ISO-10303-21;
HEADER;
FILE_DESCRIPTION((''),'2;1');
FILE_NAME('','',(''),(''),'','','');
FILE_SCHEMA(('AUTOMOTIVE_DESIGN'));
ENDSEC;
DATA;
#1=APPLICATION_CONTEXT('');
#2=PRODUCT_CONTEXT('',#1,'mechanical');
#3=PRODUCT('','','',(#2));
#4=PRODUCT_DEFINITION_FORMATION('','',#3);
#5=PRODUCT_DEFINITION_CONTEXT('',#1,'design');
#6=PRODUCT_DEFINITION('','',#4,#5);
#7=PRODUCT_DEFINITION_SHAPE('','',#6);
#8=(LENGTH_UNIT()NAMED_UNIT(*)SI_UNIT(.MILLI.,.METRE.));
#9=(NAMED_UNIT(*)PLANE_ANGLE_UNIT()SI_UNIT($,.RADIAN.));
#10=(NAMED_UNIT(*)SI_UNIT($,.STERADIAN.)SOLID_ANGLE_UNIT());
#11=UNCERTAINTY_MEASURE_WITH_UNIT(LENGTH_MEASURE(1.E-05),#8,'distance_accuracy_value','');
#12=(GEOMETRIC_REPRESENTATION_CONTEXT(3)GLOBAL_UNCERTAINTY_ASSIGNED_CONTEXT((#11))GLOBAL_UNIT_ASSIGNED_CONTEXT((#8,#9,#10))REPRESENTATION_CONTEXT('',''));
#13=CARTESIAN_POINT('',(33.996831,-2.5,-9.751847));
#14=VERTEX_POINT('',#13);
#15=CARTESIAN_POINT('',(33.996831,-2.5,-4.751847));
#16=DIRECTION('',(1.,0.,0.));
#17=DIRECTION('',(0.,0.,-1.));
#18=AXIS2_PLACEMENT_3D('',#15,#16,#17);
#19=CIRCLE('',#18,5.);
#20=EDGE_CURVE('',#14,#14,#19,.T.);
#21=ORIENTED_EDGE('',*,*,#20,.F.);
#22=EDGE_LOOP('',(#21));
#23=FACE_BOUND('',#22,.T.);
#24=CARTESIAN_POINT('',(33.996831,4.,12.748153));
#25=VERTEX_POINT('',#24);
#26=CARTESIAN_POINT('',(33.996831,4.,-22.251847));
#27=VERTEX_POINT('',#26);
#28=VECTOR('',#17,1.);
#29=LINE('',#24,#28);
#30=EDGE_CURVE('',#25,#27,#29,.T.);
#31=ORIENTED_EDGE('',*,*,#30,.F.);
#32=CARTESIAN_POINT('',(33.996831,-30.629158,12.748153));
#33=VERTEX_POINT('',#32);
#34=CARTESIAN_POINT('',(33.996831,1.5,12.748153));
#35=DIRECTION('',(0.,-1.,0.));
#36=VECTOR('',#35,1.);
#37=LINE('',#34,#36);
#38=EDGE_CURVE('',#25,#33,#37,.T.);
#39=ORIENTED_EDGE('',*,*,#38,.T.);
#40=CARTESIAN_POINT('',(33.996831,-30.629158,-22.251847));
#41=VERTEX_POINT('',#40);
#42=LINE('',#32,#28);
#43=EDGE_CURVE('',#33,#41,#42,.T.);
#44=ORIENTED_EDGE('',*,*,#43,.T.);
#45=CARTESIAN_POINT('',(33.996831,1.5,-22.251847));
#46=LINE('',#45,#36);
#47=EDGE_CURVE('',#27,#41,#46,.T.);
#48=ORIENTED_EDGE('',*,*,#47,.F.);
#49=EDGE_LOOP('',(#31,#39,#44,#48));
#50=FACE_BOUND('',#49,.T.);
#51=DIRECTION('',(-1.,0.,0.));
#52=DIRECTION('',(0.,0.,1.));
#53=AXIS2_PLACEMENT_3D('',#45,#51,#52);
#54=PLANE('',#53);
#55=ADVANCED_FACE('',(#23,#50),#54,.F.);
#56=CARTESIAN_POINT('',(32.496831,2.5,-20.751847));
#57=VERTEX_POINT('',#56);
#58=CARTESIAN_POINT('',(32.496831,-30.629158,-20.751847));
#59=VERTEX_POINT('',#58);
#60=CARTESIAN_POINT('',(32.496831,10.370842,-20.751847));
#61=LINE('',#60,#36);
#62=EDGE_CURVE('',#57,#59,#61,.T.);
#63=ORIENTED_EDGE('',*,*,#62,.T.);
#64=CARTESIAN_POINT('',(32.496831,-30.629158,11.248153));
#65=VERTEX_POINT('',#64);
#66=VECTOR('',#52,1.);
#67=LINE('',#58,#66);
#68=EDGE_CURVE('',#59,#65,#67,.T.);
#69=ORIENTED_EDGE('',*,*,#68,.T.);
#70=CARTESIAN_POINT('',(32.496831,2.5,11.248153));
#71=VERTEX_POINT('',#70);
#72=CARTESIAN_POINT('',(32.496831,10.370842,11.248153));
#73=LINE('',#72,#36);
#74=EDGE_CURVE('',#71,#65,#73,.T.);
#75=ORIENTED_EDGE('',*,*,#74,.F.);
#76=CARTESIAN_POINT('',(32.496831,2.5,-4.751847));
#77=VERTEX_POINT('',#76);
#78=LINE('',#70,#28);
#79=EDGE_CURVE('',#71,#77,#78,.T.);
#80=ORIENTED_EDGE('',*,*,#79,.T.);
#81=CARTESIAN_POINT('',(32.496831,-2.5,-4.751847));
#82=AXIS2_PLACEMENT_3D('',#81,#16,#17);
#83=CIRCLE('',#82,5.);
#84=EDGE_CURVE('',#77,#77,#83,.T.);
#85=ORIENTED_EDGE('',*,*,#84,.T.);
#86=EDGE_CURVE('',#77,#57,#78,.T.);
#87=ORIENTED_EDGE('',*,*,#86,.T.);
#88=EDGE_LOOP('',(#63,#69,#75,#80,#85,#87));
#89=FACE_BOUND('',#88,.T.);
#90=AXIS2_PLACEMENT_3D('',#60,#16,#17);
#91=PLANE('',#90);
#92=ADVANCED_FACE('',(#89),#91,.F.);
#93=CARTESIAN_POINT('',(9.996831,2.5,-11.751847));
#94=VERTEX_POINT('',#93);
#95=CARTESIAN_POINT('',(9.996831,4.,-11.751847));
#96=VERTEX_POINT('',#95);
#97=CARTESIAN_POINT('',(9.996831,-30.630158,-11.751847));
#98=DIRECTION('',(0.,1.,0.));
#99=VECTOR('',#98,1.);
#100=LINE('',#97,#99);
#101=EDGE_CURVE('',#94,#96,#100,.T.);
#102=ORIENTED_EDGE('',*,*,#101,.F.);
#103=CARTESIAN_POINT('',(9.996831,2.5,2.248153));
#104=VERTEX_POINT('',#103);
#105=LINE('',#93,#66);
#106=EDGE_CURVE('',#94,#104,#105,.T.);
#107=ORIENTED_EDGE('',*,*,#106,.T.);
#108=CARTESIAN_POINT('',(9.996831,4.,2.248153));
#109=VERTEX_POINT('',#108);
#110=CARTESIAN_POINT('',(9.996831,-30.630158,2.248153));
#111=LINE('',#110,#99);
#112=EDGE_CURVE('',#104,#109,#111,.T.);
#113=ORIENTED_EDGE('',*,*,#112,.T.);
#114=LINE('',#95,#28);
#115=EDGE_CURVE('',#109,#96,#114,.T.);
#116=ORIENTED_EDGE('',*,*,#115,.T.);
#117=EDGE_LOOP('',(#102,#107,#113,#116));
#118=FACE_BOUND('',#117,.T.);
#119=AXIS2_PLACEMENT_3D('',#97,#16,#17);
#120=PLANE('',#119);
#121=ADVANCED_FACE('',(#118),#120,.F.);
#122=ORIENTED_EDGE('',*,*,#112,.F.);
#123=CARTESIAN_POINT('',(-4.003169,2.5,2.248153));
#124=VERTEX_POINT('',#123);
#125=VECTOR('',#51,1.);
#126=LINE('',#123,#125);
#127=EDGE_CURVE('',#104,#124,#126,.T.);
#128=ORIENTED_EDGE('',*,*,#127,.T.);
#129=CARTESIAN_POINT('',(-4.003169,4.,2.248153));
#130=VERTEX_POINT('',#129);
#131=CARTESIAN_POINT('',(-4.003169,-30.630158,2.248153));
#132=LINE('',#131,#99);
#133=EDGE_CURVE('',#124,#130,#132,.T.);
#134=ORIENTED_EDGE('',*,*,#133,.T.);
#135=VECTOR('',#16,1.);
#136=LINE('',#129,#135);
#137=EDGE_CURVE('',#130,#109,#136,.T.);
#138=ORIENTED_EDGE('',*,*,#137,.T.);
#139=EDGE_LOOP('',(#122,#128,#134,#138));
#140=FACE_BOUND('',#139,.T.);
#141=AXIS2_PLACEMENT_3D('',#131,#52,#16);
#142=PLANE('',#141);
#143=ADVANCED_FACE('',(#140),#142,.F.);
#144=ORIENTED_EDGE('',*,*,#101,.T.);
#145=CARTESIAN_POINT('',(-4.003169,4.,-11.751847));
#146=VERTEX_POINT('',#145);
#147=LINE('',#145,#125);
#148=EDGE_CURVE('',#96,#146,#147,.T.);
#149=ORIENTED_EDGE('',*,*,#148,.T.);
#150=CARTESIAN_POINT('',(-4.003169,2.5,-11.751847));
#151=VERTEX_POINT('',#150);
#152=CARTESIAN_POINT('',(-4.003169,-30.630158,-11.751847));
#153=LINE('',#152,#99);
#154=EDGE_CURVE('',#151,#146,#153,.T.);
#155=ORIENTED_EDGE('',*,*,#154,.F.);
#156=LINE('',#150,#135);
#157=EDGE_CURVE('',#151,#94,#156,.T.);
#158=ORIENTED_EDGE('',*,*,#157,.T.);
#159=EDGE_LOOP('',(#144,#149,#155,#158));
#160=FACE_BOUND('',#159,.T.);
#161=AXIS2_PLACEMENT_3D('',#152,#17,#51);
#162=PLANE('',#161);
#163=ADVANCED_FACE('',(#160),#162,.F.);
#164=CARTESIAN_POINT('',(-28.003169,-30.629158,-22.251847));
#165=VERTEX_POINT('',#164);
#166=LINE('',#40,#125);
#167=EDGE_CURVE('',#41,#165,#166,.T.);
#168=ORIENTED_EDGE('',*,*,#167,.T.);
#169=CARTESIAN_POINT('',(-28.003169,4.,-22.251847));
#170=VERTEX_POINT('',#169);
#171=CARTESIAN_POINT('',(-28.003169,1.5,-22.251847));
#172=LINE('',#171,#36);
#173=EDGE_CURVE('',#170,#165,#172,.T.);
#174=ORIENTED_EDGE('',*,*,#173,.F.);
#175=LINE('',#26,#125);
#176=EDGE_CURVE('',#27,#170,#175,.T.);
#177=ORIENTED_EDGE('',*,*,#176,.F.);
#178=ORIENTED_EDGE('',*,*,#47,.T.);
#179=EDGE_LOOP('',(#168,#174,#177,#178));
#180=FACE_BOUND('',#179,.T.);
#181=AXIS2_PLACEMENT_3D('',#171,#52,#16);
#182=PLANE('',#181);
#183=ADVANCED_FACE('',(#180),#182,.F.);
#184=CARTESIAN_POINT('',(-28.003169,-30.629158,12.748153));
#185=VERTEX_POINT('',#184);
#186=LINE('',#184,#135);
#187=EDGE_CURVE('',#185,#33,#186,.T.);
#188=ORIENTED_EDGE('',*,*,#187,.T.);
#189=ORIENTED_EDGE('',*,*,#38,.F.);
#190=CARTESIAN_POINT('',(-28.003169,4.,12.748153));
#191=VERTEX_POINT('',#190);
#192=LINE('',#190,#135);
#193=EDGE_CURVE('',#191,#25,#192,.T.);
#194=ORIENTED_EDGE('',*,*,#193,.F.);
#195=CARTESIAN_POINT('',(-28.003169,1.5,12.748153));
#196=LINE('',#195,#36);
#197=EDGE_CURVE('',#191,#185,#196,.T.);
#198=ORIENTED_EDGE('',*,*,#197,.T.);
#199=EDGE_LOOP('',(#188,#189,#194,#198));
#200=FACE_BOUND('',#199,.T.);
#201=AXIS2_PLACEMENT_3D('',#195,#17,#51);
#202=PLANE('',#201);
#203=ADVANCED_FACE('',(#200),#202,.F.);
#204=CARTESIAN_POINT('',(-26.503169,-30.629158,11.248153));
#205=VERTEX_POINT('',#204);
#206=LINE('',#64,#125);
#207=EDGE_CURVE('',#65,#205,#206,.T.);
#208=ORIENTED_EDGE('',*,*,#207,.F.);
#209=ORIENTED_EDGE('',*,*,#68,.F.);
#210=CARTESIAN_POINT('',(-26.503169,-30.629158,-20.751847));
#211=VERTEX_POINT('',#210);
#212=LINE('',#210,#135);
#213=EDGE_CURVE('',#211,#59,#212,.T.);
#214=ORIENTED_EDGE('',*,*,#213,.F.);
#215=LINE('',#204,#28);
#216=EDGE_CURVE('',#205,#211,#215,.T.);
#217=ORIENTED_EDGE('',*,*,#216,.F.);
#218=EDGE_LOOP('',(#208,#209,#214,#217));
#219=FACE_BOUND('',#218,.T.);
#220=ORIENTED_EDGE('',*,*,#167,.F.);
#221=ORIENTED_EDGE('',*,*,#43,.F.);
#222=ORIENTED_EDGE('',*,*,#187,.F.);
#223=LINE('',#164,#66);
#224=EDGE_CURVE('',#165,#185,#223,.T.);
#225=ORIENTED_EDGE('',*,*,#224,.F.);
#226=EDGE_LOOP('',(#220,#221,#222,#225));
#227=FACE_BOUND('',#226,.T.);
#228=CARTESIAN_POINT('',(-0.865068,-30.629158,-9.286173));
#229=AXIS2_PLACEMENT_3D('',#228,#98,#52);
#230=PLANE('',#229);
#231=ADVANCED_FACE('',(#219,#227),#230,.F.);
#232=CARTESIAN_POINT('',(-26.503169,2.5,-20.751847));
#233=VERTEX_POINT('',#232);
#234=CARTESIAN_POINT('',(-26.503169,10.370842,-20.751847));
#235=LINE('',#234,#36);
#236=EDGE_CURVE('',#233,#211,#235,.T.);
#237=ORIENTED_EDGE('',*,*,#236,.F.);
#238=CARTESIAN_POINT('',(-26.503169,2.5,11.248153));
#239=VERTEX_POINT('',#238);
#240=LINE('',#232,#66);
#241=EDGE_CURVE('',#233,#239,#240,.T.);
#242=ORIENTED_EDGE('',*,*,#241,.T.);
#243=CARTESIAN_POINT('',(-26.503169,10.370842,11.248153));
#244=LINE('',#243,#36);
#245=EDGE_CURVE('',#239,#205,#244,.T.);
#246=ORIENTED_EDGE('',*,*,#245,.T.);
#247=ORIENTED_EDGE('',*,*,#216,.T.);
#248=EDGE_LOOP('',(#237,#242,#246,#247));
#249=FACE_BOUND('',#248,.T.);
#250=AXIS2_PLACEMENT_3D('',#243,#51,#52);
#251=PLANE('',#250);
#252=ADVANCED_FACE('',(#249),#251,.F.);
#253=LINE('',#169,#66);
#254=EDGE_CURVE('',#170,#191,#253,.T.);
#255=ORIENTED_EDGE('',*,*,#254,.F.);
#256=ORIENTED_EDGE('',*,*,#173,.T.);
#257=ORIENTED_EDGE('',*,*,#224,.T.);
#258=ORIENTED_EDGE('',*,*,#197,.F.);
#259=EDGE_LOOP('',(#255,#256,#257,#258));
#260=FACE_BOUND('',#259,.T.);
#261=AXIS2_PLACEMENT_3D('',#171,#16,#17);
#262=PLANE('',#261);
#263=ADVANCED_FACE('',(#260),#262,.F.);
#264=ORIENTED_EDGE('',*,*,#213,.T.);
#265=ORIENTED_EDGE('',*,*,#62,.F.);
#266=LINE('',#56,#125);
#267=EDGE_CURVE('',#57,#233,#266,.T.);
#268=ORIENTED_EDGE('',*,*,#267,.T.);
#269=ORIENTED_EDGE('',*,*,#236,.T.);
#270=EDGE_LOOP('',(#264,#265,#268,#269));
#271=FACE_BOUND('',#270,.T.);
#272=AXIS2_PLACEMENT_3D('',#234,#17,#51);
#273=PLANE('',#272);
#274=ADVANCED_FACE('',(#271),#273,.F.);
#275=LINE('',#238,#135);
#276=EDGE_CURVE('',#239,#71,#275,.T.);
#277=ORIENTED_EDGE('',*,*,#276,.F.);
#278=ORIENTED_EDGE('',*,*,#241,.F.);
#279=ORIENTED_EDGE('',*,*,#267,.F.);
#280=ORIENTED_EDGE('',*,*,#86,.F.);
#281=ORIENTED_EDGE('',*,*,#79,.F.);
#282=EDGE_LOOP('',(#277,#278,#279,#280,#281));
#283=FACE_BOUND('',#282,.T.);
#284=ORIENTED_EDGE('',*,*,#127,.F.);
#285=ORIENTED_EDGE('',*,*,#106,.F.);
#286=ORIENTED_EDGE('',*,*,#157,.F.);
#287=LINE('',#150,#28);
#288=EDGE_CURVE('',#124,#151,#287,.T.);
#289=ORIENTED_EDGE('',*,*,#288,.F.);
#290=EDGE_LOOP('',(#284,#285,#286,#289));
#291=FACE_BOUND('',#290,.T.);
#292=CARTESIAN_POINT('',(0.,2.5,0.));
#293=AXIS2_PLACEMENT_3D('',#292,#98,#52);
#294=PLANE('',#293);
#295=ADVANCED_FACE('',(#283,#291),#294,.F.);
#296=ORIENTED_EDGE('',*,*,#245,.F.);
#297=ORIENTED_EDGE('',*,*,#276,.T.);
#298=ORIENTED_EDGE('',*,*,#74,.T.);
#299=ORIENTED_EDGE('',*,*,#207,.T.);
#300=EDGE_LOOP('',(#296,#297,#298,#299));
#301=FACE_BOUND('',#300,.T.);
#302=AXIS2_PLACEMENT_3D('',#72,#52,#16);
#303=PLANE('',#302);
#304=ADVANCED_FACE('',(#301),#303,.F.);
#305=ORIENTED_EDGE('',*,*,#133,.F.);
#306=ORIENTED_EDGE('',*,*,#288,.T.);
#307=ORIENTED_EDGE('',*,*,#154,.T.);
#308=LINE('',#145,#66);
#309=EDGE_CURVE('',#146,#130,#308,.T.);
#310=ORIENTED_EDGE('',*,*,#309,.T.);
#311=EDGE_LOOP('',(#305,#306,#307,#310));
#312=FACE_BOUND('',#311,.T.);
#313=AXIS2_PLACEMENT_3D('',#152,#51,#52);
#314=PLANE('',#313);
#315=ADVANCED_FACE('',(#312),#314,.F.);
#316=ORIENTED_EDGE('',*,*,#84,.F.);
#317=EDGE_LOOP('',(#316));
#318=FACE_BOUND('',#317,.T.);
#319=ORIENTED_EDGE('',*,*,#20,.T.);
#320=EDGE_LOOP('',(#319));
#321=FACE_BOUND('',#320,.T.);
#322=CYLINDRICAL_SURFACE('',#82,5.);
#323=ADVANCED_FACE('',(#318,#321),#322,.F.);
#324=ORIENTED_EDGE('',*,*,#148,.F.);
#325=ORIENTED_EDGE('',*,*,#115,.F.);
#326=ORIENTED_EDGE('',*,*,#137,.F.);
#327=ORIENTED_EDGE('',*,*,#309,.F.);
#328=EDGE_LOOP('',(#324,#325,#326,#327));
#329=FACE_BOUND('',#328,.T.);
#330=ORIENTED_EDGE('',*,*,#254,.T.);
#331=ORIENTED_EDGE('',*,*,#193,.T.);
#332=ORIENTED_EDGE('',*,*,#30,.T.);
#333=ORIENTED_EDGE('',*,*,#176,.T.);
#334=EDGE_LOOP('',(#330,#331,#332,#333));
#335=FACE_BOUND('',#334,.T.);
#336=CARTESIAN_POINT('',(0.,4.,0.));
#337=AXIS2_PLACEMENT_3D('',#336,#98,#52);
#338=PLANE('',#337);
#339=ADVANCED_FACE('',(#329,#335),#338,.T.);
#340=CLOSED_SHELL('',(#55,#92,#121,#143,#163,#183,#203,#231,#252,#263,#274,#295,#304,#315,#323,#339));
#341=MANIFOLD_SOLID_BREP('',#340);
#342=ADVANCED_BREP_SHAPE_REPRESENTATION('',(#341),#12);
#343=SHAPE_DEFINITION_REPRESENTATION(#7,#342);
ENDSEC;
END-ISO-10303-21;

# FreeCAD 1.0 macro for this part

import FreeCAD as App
import Part
import Sketcher
from FreeCAD import Vector
Q = App.Units.Quantity

doc = App.newDocument("Part")
body = doc.addObject("PartDesign::Body", "Body")

sketch1 = body.newObject("Sketcher::SketchObject", "Sketch")
sketch1.AttachmentSupport = (doc.getObject("XZ_Plane"), [""])
sketch1.MapMode = "FlatFace"
sketch1.addGeometry([
    Part.LineSegment(Vector(-28.003169, -22.251847, 0), Vector(-28.003169, 12.748153, 0)),
    Part.LineSegment(Vector(-28.003169, 12.748153, 0), Vector(33.996831, 12.748153, 0)),
    Part.LineSegment(Vector(33.996831, 12.748153, 0), Vector(33.996831, -22.251847, 0)),
    Part.LineSegment(Vector(33.996831, -22.251847, 0), Vector(-28.003169, -22.251847, 0)),
], False)
sketch1.addConstraint([
    Sketcher.Constraint("Coincident", 0, 2, 1, 1),
    Sketcher.Constraint("Coincident", 1, 2, 2, 1),
    Sketcher.Constraint("Coincident", 2, 2, 3, 1),
    Sketcher.Constraint("Coincident", 3, 2, 0, 1),
    Sketcher.Constraint("Vertical", 0),
    Sketcher.Constraint("Horizontal", 1),
    Sketcher.Constraint("Vertical", 2),
    Sketcher.Constraint("Horizontal", 3),
    Sketcher.Constraint("DistanceX", 1, 1, 1, 2, Q("62 mm")),
    Sketcher.Constraint("DistanceY", 0, 1, 0, 2, Q("35 mm")),
    Sketcher.Constraint("DistanceX", 0, 2, -1, 1, Q("28.003169 mm")),
    Sketcher.Constraint("DistanceY", -1, 1, 0, 2, Q("12.748153 mm")),
])
pad1 = body.newObject("PartDesign::Pad", "Pad")
pad1.Profile = sketch1
pad1.Length = 1.5
pad1.Reversed = True

sketch2 = body.newObject("Sketcher::SketchObject", "Sketch001")
sketch2.AttachmentSupport = (doc.getObject("XZ_Plane"), [""])
sketch2.MapMode = "FlatFace"
sketch2.addGeometry([
    Part.LineSegment(Vector(-28.003169, 12.748153, 0), Vector(-28.003169, -22.251847, 0)),
    Part.LineSegment(Vector(-28.003169, -22.251847, 0), Vector(33.996831, -22.251847, 0)),
    Part.LineSegment(Vector(33.996831, -22.251847, 0), Vector(33.996831, 12.748153, 0)),
    Part.LineSegment(Vector(33.996831, 12.748153, 0), Vector(-28.003169, 12.748153, 0)),
], False)
sketch2.addConstraint([
    Sketcher.Constraint("Coincident", 0, 2, 1, 1),
    Sketcher.Constraint("Coincident", 1, 2, 2, 1),
    Sketcher.Constraint("Coincident", 2, 2, 3, 1),
    Sketcher.Constraint("Coincident", 3, 2, 0, 1),
    Sketcher.Constraint("Vertical", 0),
    Sketcher.Constraint("Horizontal", 1),
    Sketcher.Constraint("Vertical", 2),
    Sketcher.Constraint("Horizontal", 3),
    Sketcher.Constraint("DistanceX", 1, 1, 1, 2, Q("62 mm")),
    Sketcher.Constraint("DistanceY", 0, 2, 0, 1, Q("35 mm")),
    Sketcher.Constraint("DistanceX", 0, 2, -1, 1, Q("28.003169 mm")),
    Sketcher.Constraint("DistanceY", 0, 2, -1, 1, Q("22.251847 mm")),
])
pad2 = body.newObject("PartDesign::Pad", "Pad001")
pad2.Profile = sketch2
pad2.Length = 30.629158

sketch3 = body.newObject("Sketcher::SketchObject", "Sketch002")
sketch3.AttachmentSupport = (doc.getObject("XZ_Plane"), [""])
sketch3.MapMode = "FlatFace"
sketch3.AttachmentOffset = App.Placement(Vector(0, 0, 30.629158), App.Rotation())
sketch3.addGeometry([
    Part.LineSegment(Vector(-26.503169, 11.248153, 0), Vector(-26.503169, -20.751847, 0)),
    Part.LineSegment(Vector(-26.503169, -20.751847, 0), Vector(32.496831, -20.751847, 0)),
    Part.LineSegment(Vector(32.496831, -20.751847, 0), Vector(32.496831, 11.248153, 0)),
    Part.LineSegment(Vector(32.496831, 11.248153, 0), Vector(-26.503169, 11.248153, 0)),
], False)
sketch3.addConstraint([
    Sketcher.Constraint("Coincident", 0, 2, 1, 1),
    Sketcher.Constraint("Coincident", 1, 2, 2, 1),
    Sketcher.Constraint("Coincident", 2, 2, 3, 1),
    Sketcher.Constraint("Coincident", 3, 2, 0, 1),
    Sketcher.Constraint("Vertical", 0),
    Sketcher.Constraint("Horizontal", 1),
    Sketcher.Constraint("Vertical", 2),
    Sketcher.Constraint("Horizontal", 3),
    Sketcher.Constraint("DistanceX", 1, 1, 1, 2, Q("59 mm")),
    Sketcher.Constraint("DistanceY", 0, 2, 0, 1, Q("32 mm")),
    Sketcher.Constraint("DistanceX", 0, 2, -1, 1, Q("26.503169 mm")),
    Sketcher.Constraint("DistanceY", 0, 2, -1, 1, Q("20.751847 mm")),
])
pocket1 = body.newObject("PartDesign::Pocket", "Pocket")
pocket1.Profile = sketch3
pocket1.Length = 41

sketch4 = body.newObject("Sketcher::SketchObject", "Sketch003")
sketch4.AttachmentSupport = (doc.getObject("XZ_Plane"), [""])
sketch4.MapMode = "FlatFace"
sketch4.AttachmentOffset = App.Placement(Vector(0, 0, -1.5), App.Rotation())
sketch4.addGeometry([
    Part.LineSegment(Vector(-28.003169, -22.251847, 0), Vector(-28.003169, 12.748153, 0)),
    Part.LineSegment(Vector(-28.003169, 12.748153, 0), Vector(33.996831, 12.748153, 0)),
    Part.LineSegment(Vector(33.996831, 12.748153, 0), Vector(33.996831, -22.251847, 0)),
    Part.LineSegment(Vector(33.996831, -22.251847, 0), Vector(-28.003169, -22.251847, 0)),
    Part.LineSegment(Vector(32.496831, 11.248153, 0), Vector(-26.503169, 11.248153, 0)),
    Part.LineSegment(Vector(-26.503169, 11.248153, 0), Vector(-26.503169, -20.751847, 0)),
    Part.LineSegment(Vector(-26.503169, -20.751847, 0), Vector(32.496831, -20.751847, 0)),
    Part.LineSegment(Vector(32.496831, -20.751847, 0), Vector(32.496831, 11.248153, 0)),
], False)
sketch4.addConstraint([
    Sketcher.Constraint("Coincident", 0, 2, 1, 1),
    Sketcher.Constraint("Coincident", 1, 2, 2, 1),
    Sketcher.Constraint("Coincident", 2, 2, 3, 1),
    Sketcher.Constraint("Coincident", 3, 2, 0, 1),
    Sketcher.Constraint("Coincident", 4, 2, 5, 1),
    Sketcher.Constraint("Coincident", 5, 2, 6, 1),
    Sketcher.Constraint("Coincident", 6, 2, 7, 1),
    Sketcher.Constraint("Coincident", 7, 2, 4, 1),
    Sketcher.Constraint("Vertical", 0),
    Sketcher.Constraint("Horizontal", 1),
    Sketcher.Constraint("Vertical", 2),
    Sketcher.Constraint("Horizontal", 3),
    Sketcher.Constraint("Horizontal", 4),
    Sketcher.Constraint("Vertical", 5),
    Sketcher.Constraint("Horizontal", 6),
    Sketcher.Constraint("Vertical", 7),
    Sketcher.Constraint("DistanceX", 1, 1, 1, 2, Q("62 mm")),
    Sketcher.Constraint("DistanceX", 4, 2, 4, 1, Q("59 mm")),
    Sketcher.Constraint("DistanceY", 0, 1, 0, 2, Q("35 mm")),
    Sketcher.Constraint("DistanceY", 5, 2, 5, 1, Q("32 mm")),
    Sketcher.Constraint("DistanceX", 0, 2, 4, 2, Q("1.5 mm")),
    Sketcher.Constraint("DistanceY", 4, 2, 0, 2, Q("1.5 mm")),
    Sketcher.Constraint("DistanceX", 0, 2, -1, 1, Q("28.003169 mm")),
    Sketcher.Constraint("DistanceY", -1, 1, 0, 2, Q("12.748153 mm")),
])
pad3 = body.newObject("PartDesign::Pad", "Pad002")
pad3.Profile = sketch4
pad3.Length = 1
pad3.Reversed = True

sketch5 = body.newObject("Sketcher::SketchObject", "Sketch004")
sketch5.AttachmentSupport = (doc.getObject("XZ_Plane"), [""])
sketch5.MapMode = "FlatFace"
sketch5.AttachmentOffset = App.Placement(Vector(0, 0, -2.5), App.Rotation())
sketch5.addGeometry([
    Part.LineSegment(Vector(-28.003169, -22.251847, 0), Vector(-28.003169, 12.748153, 0)),
    Part.LineSegment(Vector(-28.003169, 12.748153, 0), Vector(33.996831, 12.748153, 0)),
    Part.LineSegment(Vector(33.996831, 12.748153, 0), Vector(33.996831, -22.251847, 0)),
    Part.LineSegment(Vector(33.996831, -22.251847, 0), Vector(-28.003169, -22.251847, 0)),
], False)
sketch5.addConstraint([
    Sketcher.Constraint("Coincident", 0, 2, 1, 1),
    Sketcher.Constraint("Coincident", 1, 2, 2, 1),
    Sketcher.Constraint("Coincident", 2, 2, 3, 1),
    Sketcher.Constraint("Coincident", 3, 2, 0, 1),
    Sketcher.Constraint("Vertical", 0),
    Sketcher.Constraint("Horizontal", 1),
    Sketcher.Constraint("Vertical", 2),
    Sketcher.Constraint("Horizontal", 3),
    Sketcher.Constraint("DistanceX", 1, 1, 1, 2, Q("62 mm")),
    Sketcher.Constraint("DistanceY", 0, 1, 0, 2, Q("35 mm")),
    Sketcher.Constraint("DistanceX", 0, 2, -1, 1, Q("28.003169 mm")),
    Sketcher.Constraint("DistanceY", -1, 1, 0, 2, Q("12.748153 mm")),
])
pad4 = body.newObject("PartDesign::Pad", "Pad003")
pad4.Profile = sketch5
pad4.Length = 1.5
pad4.Reversed = True

sketch6 = body.newObject("Sketcher::SketchObject", "Sketch005")
sketch6.AttachmentSupport = (doc.getObject("YZ_Plane"), [""])
sketch6.MapMode = "FlatFace"
sketch6.AttachmentOffset = App.Placement(Vector(0, 0, 33.996831), App.Rotation())
sketch6.addGeometry(Part.Circle(Vector(-2.5, -4.751847, 0), Vector(0, 0, 1), 5), False)
sketch6.addConstraint([
    Sketcher.Constraint("Diameter", 0, Q("10 mm")),
    Sketcher.Constraint("DistanceX", 0, 3, -1, 1, Q("2.5 mm")),
    Sketcher.Constraint("DistanceY", 0, 3, -1, 1, Q("4.751847 mm")),
])
pocket2 = body.newObject("PartDesign::Pocket", "Pocket001")
pocket2.Profile = sketch6
pocket2.Length = 1.5

sketch7 = body.newObject("Sketcher::SketchObject", "Sketch006")
sketch7.AttachmentSupport = (doc.getObject("XZ_Plane"), [""])
sketch7.MapMode = "FlatFace"
sketch7.AttachmentOffset = App.Placement(Vector(0, 0, -4), App.Rotation())
sketch7.addGeometry([
    Part.LineSegment(Vector(-4.003169, -11.751847, 0), Vector(-4.003169, 2.248153, 0)),
    Part.LineSegment(Vector(-4.003169, 2.248153, 0), Vector(9.996831, 2.248153, 0)),
    Part.LineSegment(Vector(9.996831, 2.248153, 0), Vector(9.996831, -11.751847, 0)),
    Part.LineSegment(Vector(9.996831, -11.751847, 0), Vector(-4.003169, -11.751847, 0)),
], False)
sketch7.addConstraint([
    Sketcher.Constraint("Coincident", 0, 2, 1, 1),
    Sketcher.Constraint("Coincident", 1, 2, 2, 1),
    Sketcher.Constraint("Coincident", 2, 2, 3, 1),
    Sketcher.Constraint("Coincident", 3, 2, 0, 1),
    Sketcher.Constraint("Vertical", 0),
    Sketcher.Constraint("Horizontal", 1),
    Sketcher.Constraint("Vertical", 2),
    Sketcher.Constraint("Horizontal", 3),
    Sketcher.Constraint("Equal", 3, 0),
    Sketcher.Constraint("DistanceX", 1, 1, 1, 2, Q("14 mm")),
    Sketcher.Constraint("DistanceX", 0, 2, -1, 1, Q("4.003169 mm")),
    Sketcher.Constraint("DistanceY", -1, 1, 0, 2, Q("2.248153 mm")),
])
pocket3 = body.newObject("PartDesign::Pocket", "Pocket002")
pocket3.Profile = sketch7
pocket3.Type = "UpToFirst"
pocket3.Reversed = True

doc.recompute()
